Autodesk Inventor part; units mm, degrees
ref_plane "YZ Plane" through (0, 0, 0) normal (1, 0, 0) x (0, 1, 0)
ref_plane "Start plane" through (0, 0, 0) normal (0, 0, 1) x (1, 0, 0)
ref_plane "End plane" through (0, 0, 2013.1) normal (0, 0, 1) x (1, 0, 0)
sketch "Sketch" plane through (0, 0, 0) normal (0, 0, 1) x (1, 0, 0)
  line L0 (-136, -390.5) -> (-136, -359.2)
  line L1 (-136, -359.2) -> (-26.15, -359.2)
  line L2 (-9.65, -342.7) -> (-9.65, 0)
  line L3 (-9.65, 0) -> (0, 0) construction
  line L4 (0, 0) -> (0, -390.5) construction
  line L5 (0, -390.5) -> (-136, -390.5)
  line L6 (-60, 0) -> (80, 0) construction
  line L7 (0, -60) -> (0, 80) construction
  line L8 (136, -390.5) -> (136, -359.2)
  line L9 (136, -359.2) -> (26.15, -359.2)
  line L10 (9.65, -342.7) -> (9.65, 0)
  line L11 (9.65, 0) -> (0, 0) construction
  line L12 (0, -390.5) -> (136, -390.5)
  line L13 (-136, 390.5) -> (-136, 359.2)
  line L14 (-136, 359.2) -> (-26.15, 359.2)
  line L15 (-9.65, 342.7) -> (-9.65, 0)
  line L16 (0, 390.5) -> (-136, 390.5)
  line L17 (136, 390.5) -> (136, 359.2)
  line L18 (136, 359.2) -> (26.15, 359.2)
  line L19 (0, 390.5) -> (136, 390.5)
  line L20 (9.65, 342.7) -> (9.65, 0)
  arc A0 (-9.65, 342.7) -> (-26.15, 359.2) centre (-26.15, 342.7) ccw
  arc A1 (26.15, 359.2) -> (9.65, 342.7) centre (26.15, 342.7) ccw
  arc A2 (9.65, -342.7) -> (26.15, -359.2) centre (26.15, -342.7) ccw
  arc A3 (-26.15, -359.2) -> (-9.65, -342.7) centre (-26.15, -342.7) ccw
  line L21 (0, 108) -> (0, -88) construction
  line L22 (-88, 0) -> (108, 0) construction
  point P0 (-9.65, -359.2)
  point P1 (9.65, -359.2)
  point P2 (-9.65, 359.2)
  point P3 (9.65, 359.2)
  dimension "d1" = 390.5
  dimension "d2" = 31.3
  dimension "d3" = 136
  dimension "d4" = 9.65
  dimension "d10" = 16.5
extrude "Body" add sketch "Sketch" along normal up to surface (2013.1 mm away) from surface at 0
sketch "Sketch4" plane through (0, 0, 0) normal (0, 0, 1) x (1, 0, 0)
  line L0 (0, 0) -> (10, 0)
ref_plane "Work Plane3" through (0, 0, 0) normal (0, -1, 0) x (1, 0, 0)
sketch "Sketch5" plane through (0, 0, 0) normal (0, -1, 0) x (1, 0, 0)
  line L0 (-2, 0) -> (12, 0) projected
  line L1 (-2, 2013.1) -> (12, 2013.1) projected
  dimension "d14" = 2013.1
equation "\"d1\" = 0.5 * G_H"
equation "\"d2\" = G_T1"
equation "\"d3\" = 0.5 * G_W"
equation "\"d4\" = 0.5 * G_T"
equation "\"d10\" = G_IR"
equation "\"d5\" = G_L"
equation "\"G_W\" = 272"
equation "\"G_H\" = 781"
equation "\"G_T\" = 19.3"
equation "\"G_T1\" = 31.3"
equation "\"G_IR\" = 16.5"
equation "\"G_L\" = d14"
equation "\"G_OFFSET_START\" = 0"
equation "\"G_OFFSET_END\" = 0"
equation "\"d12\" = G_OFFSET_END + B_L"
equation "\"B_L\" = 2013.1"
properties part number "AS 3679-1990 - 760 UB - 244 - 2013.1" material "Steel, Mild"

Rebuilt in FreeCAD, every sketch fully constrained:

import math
import FreeCAD as App
import Part
import Sketcher
Q = App.Units.Quantity

doc = App.newDocument("Part")
params = doc.addObject("Spreadsheet::Sheet", "Params")
for row, (alias, value) in enumerate([
    ("sketch1_radius", "16.5 mm"),
    ("sketch1_height", "31.3 mm"),
    ("pad1_length", "2013.1 mm"),
], start=1):
    params.set(f"A{row}", alias)
    params.set(f"B{row}", "=" + value)
    params.setAlias(f"B{row}", alias)

body = doc.addObject("PartDesign::Body", "Body")

# Sketch on XY plane
sketch1 = doc.addObject("Sketcher::SketchObject", "Sketch")
body.addObject(sketch1)
sketch1.AttachmentSupport = (doc.XY_Plane, [""])
sketch1.MapMode = "FlatFace"
sketch1.addGeometry(Part.LineSegment(App.Vector(-136, -359.2, 0), App.Vector(-136, -390.5, 0)), False)
sketch1.addGeometry(Part.LineSegment(App.Vector(-136, -390.5, 0), App.Vector(136, -390.5, 0)), False)
sketch1.addGeometry(Part.LineSegment(App.Vector(136, -390.5, 0), App.Vector(136, -359.2, 0)), False)
sketch1.addGeometry(Part.LineSegment(App.Vector(136, -359.2, 0), App.Vector(26.15, -359.2, 0)), False)
sketch1.addGeometry(Part.ArcOfCircle(Part.Circle(App.Vector(26.15, -342.7, 0), App.Vector(0, 0, 1), 16.5), math.radians(180), math.radians(270)), False)
sketch1.addGeometry(Part.LineSegment(App.Vector(9.65, -342.7, 0), App.Vector(9.65, 342.7, 0)), False)
sketch1.addGeometry(Part.ArcOfCircle(Part.Circle(App.Vector(26.15, 342.7, 0), App.Vector(0, 0, 1), 16.5), math.radians(90), math.radians(180)), False)
sketch1.addGeometry(Part.LineSegment(App.Vector(26.15, 359.2, 0), App.Vector(136, 359.2, 0)), False)
sketch1.addGeometry(Part.LineSegment(App.Vector(136, 359.2, 0), App.Vector(136, 390.5, 0)), False)
sketch1.addGeometry(Part.LineSegment(App.Vector(136, 390.5, 0), App.Vector(-136, 390.5, 0)), False)
sketch1.addGeometry(Part.LineSegment(App.Vector(-136, 390.5, 0), App.Vector(-136, 359.2, 0)), False)
sketch1.addGeometry(Part.LineSegment(App.Vector(-136, 359.2, 0), App.Vector(-26.15, 359.2, 0)), False)
sketch1.addGeometry(Part.ArcOfCircle(Part.Circle(App.Vector(-26.15, 342.7, 0), App.Vector(0, 0, 1), 16.5), math.radians(0), math.radians(90)), False)
sketch1.addGeometry(Part.LineSegment(App.Vector(-9.65, 342.7, 0), App.Vector(-9.65, -342.7, 0)), False)
sketch1.addGeometry(Part.ArcOfCircle(Part.Circle(App.Vector(-26.15, -342.7, 0), App.Vector(0, 0, 1), 16.5), math.radians(-90), math.radians(0)), False)
sketch1.addGeometry(Part.LineSegment(App.Vector(-26.15, -359.2, 0), App.Vector(-136, -359.2, 0)), False)
sketch1.addConstraint(Sketcher.Constraint("Coincident", 0, 2, 1, 1))
sketch1.addConstraint(Sketcher.Constraint("Coincident", 1, 2, 2, 1))
sketch1.addConstraint(Sketcher.Constraint("Coincident", 2, 2, 3, 1))
sketch1.addConstraint(Sketcher.Constraint("Tangent", 3, 2, 4, 2))
sketch1.addConstraint(Sketcher.Constraint("Tangent", 4, 1, 5, 1))
sketch1.addConstraint(Sketcher.Constraint("Tangent", 5, 2, 6, 2))
sketch1.addConstraint(Sketcher.Constraint("Tangent", 6, 1, 7, 1))
sketch1.addConstraint(Sketcher.Constraint("Coincident", 7, 2, 8, 1))
sketch1.addConstraint(Sketcher.Constraint("Coincident", 8, 2, 9, 1))
sketch1.addConstraint(Sketcher.Constraint("Coincident", 9, 2, 10, 1))
sketch1.addConstraint(Sketcher.Constraint("Coincident", 10, 2, 11, 1))
sketch1.addConstraint(Sketcher.Constraint("Tangent", 11, 2, 12, 2))
sketch1.addConstraint(Sketcher.Constraint("Tangent", 12, 1, 13, 1))
sketch1.addConstraint(Sketcher.Constraint("Tangent", 13, 2, 14, 2))
sketch1.addConstraint(Sketcher.Constraint("Tangent", 14, 1, 15, 1))
sketch1.addConstraint(Sketcher.Constraint("Coincident", 15, 2, 0, 1))
sketch1.addConstraint(Sketcher.Constraint("Vertical", 0))
sketch1.addConstraint(Sketcher.Constraint("Horizontal", 1))
sketch1.addConstraint(Sketcher.Constraint("Vertical", 2))
sketch1.addConstraint(Sketcher.Constraint("Horizontal", 3))
sketch1.addConstraint(Sketcher.Constraint("Vertical", 5))
sketch1.addConstraint(Sketcher.Constraint("Horizontal", 7))
sketch1.addConstraint(Sketcher.Constraint("Vertical", 8))
sketch1.addConstraint(Sketcher.Constraint("Horizontal", 9))
sketch1.addConstraint(Sketcher.Constraint("Vertical", 10))
sketch1.addConstraint(Sketcher.Constraint("Horizontal", 11))
sketch1.addConstraint(Sketcher.Constraint("Vertical", 13))
sketch1.addConstraint(Sketcher.Constraint("Horizontal", 15))
sketch1.addConstraint(Sketcher.Constraint("Equal", 4, 6))
sketch1.addConstraint(Sketcher.Constraint("Equal", 6, 12))
sketch1.addConstraint(Sketcher.Constraint("Equal", 12, 14))
sketch1.addConstraint(Sketcher.Constraint("Symmetric", 4, 3, 12, 3, -1, 1))
sketch1.addConstraint(Sketcher.Constraint("Symmetric", 0, 2, 8, 2, -1, 1))
sketch1.addConstraint(Sketcher.Constraint("Symmetric", 7, 2, 10, 2, -2))
sketch1.addConstraint(Sketcher.Constraint("Symmetric", 2, 2, 15, 2, -2))
sketch1.addConstraint(Sketcher.Constraint("Radius", 4, Q("16.5 mm")))
sketch1.addConstraint(Sketcher.Constraint("DistanceY", 0, 2, 0, 1, Q("31.3 mm")))
sketch1.addConstraint(Sketcher.Constraint("DistanceX", 0, 2, -1, 1, Q("136 mm")))
sketch1.addConstraint(Sketcher.Constraint("DistanceY", 0, 2, -1, 1, Q("390.5 mm")))
sketch1.addConstraint(Sketcher.Constraint("DistanceX", -1, 1, 4, 1, Q("9.65 mm")))
sketch1.setExpression("Constraints[35]", "Params.sketch1_radius")
sketch1.setExpression("Constraints[36]", "Params.sketch1_height")
pad1 = doc.addObject("PartDesign::Pad", "Pad")
body.addObject(pad1)
pad1.Profile = sketch1
pad1.setExpression("Length", "Params.pad1_length")

doc.recompute()
